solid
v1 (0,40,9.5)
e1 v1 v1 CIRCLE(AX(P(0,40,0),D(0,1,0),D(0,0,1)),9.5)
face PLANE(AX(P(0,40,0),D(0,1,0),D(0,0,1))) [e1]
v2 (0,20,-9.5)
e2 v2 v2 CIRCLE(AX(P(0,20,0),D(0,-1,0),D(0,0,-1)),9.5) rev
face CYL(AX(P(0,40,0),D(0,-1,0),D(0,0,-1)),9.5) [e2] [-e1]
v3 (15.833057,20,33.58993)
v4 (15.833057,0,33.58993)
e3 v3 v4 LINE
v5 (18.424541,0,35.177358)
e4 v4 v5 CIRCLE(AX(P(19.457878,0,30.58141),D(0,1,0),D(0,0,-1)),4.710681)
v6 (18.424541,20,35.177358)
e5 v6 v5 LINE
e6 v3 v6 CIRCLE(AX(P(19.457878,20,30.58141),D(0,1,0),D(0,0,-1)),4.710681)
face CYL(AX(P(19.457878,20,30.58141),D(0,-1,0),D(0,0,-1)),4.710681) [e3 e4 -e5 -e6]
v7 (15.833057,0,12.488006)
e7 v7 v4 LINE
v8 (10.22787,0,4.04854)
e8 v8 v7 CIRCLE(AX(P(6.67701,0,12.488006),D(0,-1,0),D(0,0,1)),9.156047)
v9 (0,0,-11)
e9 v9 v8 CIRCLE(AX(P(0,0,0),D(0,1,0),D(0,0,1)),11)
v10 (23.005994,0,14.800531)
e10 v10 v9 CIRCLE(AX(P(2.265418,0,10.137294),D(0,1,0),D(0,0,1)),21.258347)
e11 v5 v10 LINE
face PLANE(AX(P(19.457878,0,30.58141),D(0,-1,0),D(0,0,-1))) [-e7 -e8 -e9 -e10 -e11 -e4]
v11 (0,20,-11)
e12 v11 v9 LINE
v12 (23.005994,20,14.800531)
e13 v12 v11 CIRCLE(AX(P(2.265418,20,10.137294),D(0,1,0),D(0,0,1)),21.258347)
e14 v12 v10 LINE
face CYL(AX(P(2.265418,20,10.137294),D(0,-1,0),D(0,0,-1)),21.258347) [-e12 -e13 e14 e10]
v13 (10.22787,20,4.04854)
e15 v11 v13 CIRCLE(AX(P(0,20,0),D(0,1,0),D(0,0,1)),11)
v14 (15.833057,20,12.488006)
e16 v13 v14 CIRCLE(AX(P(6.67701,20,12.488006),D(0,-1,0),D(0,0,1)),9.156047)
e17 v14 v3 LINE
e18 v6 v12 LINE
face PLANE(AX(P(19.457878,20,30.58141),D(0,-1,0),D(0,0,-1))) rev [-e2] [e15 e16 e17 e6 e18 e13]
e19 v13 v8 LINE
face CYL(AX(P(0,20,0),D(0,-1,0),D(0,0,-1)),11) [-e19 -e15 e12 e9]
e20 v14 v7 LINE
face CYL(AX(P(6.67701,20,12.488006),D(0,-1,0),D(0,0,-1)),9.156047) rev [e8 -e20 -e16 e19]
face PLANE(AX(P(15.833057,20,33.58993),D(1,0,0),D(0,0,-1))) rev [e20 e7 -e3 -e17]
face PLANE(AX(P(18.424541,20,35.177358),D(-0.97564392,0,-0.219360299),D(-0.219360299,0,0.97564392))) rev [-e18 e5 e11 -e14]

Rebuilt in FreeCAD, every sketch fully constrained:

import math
import FreeCAD as App
import Part
import Sketcher

V = App.Vector
Q = App.Units.Quantity

doc = App.newDocument("Part")
body = doc.addObject("PartDesign::Body", "Body")

sketch1 = doc.addObject("Sketcher::SketchObject", "Sketch")
body.addObject(sketch1)
sketch1.AttachmentSupport = (doc.XZ_Plane, [""])
sketch1.MapMode = "FlatFace"
sketch1.addGeometry([
    Part.LineSegment(V(18.4, 35.2, 0), V(23, 14.8, 0)),
    Part.ArcOfCircle(Part.Circle(V(2.3, 10.1, 0), V(0, 0, 1), 21.3), math.radians(-96), math.radians(13)),
    Part.ArcOfCircle(Part.Circle(V(0, 0, 0), V(0, 0, 1), 11), math.radians(22), math.radians(270)),
    Part.ArcOfCircle(Part.Circle(V(6.7, 12.5, 0), V(0, 0, 1), 9.2), math.radians(-67), math.radians(0)),
    Part.LineSegment(V(15.8, 12.5, 0), V(15.8, 33.6, 0)),
    Part.ArcOfCircle(Part.Circle(V(19.5, 30.6, 0), V(0, 0, 1), 4.7), math.radians(103), math.radians(140)),
], False)
sketch1.addConstraint([
    Sketcher.Constraint("Tangent", 0, 2, 1, 2),
    Sketcher.Constraint("Coincident", 1, 1, 2, 2),
    Sketcher.Constraint("Coincident", 2, 1, 3, 1),
    Sketcher.Constraint("Tangent", 3, 2, 4, 1),
    Sketcher.Constraint("Coincident", 4, 2, 5, 2),
    Sketcher.Constraint("Coincident", 5, 1, 0, 1),
    Sketcher.Constraint("Vertical", 4),
    Sketcher.Constraint("Coincident", 2, 3, -1, 1),
    Sketcher.Constraint("PointOnObject", 1, 1, -2),
    Sketcher.Constraint("Radius", 2, Q("11 mm")),
    Sketcher.Constraint("Radius", 5, Q("4.710681 mm")),
    Sketcher.Constraint("Radius", 1, Q("21.258347 mm")),
    Sketcher.Constraint("Radius", 3, Q("9.156047 mm")),
    Sketcher.Constraint("DistanceY", 0, 2, 4, 2, Q("18.789399 mm")),
    Sketcher.Constraint("DistanceY", 4, 1, 4, 2, Q("21.101924 mm")),
    Sketcher.Constraint("DistanceX", -1, 1, 3, 3, Q("6.67701 mm")),
    Sketcher.Constraint("DistanceY", -1, 1, 5, 3, Q("30.58141 mm")),
    Sketcher.Constraint("DistanceY", -1, 1, 0, 2, Q("14.800531 mm")),
    Sketcher.Constraint("DistanceX", -1, 1, 5, 1, Q("18.424541 mm")),
])
pad1 = doc.addObject("PartDesign::Pad", "Pad")
body.addObject(pad1)
pad1.Profile = sketch1
pad1.Length = 20
pad1.Reversed = True

sketch2 = doc.addObject("Sketcher::SketchObject", "Sketch001")
body.addObject(sketch2)
sketch2.AttachmentSupport = (doc.XZ_Plane, [""])
sketch2.MapMode = "FlatFace"
sketch2.AttachmentOffset = App.Placement(V(0, 0, -20), App.Rotation())
sketch2.addGeometry(Part.Circle(V(0, 0, 0), V(0, 0, 1), 10), False)
sketch2.addConstraint([
    Sketcher.Constraint("Coincident", 0, 3, -1, 1),
    Sketcher.Constraint("Diameter", 0, Q("19 mm")),
])
pad2 = doc.addObject("PartDesign::Pad", "Pad001")
body.addObject(pad2)
pad2.Profile = sketch2
pad2.Length = 20
pad2.Reversed = True

doc.recompute()
